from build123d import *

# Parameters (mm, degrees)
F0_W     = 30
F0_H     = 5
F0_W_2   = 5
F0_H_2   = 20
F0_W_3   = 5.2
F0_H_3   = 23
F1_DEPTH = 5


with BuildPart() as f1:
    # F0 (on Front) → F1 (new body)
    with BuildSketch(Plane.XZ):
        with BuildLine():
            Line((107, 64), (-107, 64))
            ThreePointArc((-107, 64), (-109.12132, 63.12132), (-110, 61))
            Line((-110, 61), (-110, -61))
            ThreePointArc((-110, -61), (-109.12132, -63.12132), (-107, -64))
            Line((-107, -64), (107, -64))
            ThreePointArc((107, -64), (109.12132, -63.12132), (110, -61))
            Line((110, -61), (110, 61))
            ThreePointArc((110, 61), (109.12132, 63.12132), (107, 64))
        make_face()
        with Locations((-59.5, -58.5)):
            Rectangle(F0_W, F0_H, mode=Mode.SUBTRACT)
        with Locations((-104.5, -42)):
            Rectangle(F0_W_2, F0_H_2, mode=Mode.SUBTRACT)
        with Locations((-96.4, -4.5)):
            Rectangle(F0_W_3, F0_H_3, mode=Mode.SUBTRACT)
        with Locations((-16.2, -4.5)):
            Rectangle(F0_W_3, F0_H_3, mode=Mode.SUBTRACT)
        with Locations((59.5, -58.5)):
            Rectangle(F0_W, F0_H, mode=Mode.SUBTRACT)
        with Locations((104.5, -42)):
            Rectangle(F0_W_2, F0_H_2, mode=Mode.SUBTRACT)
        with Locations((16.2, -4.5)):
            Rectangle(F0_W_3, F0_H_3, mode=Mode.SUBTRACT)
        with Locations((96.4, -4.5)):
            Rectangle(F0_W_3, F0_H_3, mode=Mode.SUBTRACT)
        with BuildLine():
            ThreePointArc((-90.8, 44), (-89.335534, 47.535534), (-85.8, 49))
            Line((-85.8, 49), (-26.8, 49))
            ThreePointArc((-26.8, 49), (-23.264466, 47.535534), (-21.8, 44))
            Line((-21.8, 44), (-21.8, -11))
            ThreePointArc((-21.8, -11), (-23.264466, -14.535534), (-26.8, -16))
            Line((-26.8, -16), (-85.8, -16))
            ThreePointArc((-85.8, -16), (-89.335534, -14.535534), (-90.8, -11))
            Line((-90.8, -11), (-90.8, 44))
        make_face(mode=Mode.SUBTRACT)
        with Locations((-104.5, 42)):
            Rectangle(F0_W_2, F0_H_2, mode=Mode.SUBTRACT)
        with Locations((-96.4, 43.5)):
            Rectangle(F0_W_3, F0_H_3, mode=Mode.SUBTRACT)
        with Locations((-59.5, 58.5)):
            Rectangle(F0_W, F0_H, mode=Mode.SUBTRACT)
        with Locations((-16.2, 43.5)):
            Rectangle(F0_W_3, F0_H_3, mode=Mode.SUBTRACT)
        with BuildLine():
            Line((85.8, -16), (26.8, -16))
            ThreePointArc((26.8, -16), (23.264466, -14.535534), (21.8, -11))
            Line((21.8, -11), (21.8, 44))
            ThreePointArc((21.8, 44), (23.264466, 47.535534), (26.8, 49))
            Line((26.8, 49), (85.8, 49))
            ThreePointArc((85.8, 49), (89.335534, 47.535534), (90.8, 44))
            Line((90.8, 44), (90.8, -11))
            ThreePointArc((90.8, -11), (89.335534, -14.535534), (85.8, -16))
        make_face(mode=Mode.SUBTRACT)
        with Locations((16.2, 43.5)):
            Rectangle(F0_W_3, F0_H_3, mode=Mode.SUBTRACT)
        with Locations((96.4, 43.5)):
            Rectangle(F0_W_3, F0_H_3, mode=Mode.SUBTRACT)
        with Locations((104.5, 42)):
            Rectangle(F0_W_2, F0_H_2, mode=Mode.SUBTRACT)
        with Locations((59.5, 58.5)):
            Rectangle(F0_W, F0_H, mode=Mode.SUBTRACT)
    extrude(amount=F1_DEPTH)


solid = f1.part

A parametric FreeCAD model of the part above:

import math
import FreeCAD as App
import Part
import Sketcher


def add_polygon(sketch, points):
    """Adds a closed chain of lines whose ends are joined by coincident constraints."""
    first, n = sketch.GeometryCount, len(points)
    for a, b in zip(points, points[1:] + points[:1]):
        sketch.addGeometry(Part.LineSegment(App.Vector(*a, 0), App.Vector(*b, 0)), False)
    for i in range(n):
        sketch.addConstraint(Sketcher.Constraint("Coincident", first + i, 2, first + (i + 1) % n, 1))

doc = App.newDocument("Part")
params = doc.addObject("Spreadsheet::Sheet", "Params")
for row, (alias, value) in enumerate([
    ("sketch1_radius", "3.000001 mm"),
    ("sketch1_radius2", "5 mm"),
    ("sketch1_width", "214 mm"),
    ("sketch1_width2", "30 mm"),
    ("sketch1_width3", "5 mm"),
    ("pad1_length", "5 mm"),
], start=1):
    params.set(f"A{row}", alias)
    params.set(f"B{row}", "=" + value)
    params.setAlias(f"B{row}", alias)

body = doc.addObject("PartDesign::Body", "Body")

sketch1 = body.newObject("Sketcher::SketchObject", "Sketch")
sketch1.AttachmentSupport = (doc.getObject("XZ_Plane"), [""])
sketch1.MapMode = "FlatFace"
sketch1.addGeometry(Part.LineSegment(App.Vector(107, 64, 0), App.Vector(-107, 64, 0)), False)
sketch1.addGeometry(Part.ArcOfCircle(Part.Circle(App.Vector(-106.999999, 60.999999, 0), App.Vector(0, 0, 1), 3.000001), math.radians(90.000022), math.radians(179.999978)), False)
sketch1.addGeometry(Part.LineSegment(App.Vector(-110, 61, 0), App.Vector(-110, -61, 0)), False)
sketch1.addGeometry(Part.ArcOfCircle(Part.Circle(App.Vector(-106.999999, -60.999999, 0), App.Vector(0, 0, 1), 3.000001), math.radians(-179.999978), math.radians(-90.000022)), False)
sketch1.addGeometry(Part.LineSegment(App.Vector(-107, -64, 0), App.Vector(107, -64, 0)), False)
sketch1.addGeometry(Part.ArcOfCircle(Part.Circle(App.Vector(106.999999, -60.999999, 0), App.Vector(0, 0, 1), 3.000001), math.radians(-89.999978), math.radians(-0.000022)), False)
sketch1.addGeometry(Part.LineSegment(App.Vector(110, -61, 0), App.Vector(110, 61, 0)), False)
sketch1.addGeometry(Part.ArcOfCircle(Part.Circle(App.Vector(106.999999, 60.999999, 0), App.Vector(0, 0, 1), 3.000001), math.radians(0.000022), math.radians(89.999978)), False)
add_polygon(sketch1, [(-44.5, -61), (-74.5, -61), (-74.5, -56), (-44.5, -56)])
add_polygon(sketch1, [(-102, -52), (-107, -52), (-107, -32), (-102, -32)])
add_polygon(sketch1, [(-93.8, -16), (-99, -16), (-99, 7), (-93.8, 7)])
add_polygon(sketch1, [(-13.6, -16), (-18.8, -16), (-18.8, 7), (-13.6, 7)])
add_polygon(sketch1, [(74.5, -61), (44.5, -61), (44.5, -56), (74.5, -56)])
add_polygon(sketch1, [(107, -52), (102, -52), (102, -32), (107, -32)])
add_polygon(sketch1, [(18.8, -16), (13.6, -16), (13.6, 7), (18.8, 7)])
add_polygon(sketch1, [(99, -16), (93.8, -16), (93.8, 7), (99, 7)])
sketch1.addGeometry(Part.LineSegment(App.Vector(-90.8, -11, 0), App.Vector(-90.8, 44, 0)), False)
sketch1.addGeometry(Part.ArcOfCircle(Part.Circle(App.Vector(-85.8, 44, 0), App.Vector(0, 0, 1), 5), math.radians(89.999996), math.radians(180.000004)), False)
sketch1.addGeometry(Part.LineSegment(App.Vector(-85.8, 49, 0), App.Vector(-26.8, 49, 0)), False)
sketch1.addGeometry(Part.ArcOfCircle(Part.Circle(App.Vector(-26.8, 44, 0), App.Vector(0, 0, 1), 5), math.radians(-0.000004), math.radians(90.000004)), False)
sketch1.addGeometry(Part.LineSegment(App.Vector(-21.8, 44, 0), App.Vector(-21.8, -11, 0)), False)
sketch1.addGeometry(Part.ArcOfCircle(Part.Circle(App.Vector(-26.8, -11, 0), App.Vector(0, 0, 1), 5), math.radians(-90.000004), math.radians(0.000004)), False)
sketch1.addGeometry(Part.LineSegment(App.Vector(-26.8, -16, 0), App.Vector(-85.8, -16, 0)), False)
sketch1.addGeometry(Part.ArcOfCircle(Part.Circle(App.Vector(-85.8, -11, 0), App.Vector(0, 0, 1), 5), math.radians(179.999996), math.radians(270.000004)), False)
add_polygon(sketch1, [(-102, 32), (-107, 32), (-107, 52), (-102, 52)])
add_polygon(sketch1, [(-93.8, 32), (-99, 32), (-99, 55), (-93.8, 55)])
add_polygon(sketch1, [(-44.5, 56), (-74.5, 56), (-74.5, 61), (-44.5, 61)])
add_polygon(sketch1, [(-13.6, 32), (-18.8, 32), (-18.8, 55), (-13.6, 55)])
sketch1.addGeometry(Part.ArcOfCircle(Part.Circle(App.Vector(85.8, -11, 0), App.Vector(0, 0, 1), 5), math.radians(-90.000004), math.radians(0.000004)), False)
sketch1.addGeometry(Part.LineSegment(App.Vector(85.8, -16, 0), App.Vector(26.8, -16, 0)), False)
sketch1.addGeometry(Part.ArcOfCircle(Part.Circle(App.Vector(26.8, -11, 0), App.Vector(0, 0, 1), 5), math.radians(179.999996), math.radians(270.000004)), False)
sketch1.addGeometry(Part.LineSegment(App.Vector(21.8, -11, 0), App.Vector(21.8, 44, 0)), False)
sketch1.addGeometry(Part.ArcOfCircle(Part.Circle(App.Vector(26.8, 44, 0), App.Vector(0, 0, 1), 5), math.radians(89.999996), math.radians(180.000004)), False)
sketch1.addGeometry(Part.LineSegment(App.Vector(26.8, 49, 0), App.Vector(85.8, 49, 0)), False)
sketch1.addGeometry(Part.ArcOfCircle(Part.Circle(App.Vector(85.8, 44, 0), App.Vector(0, 0, 1), 5), math.radians(-0.000004), math.radians(90.000004)), False)
sketch1.addGeometry(Part.LineSegment(App.Vector(90.8, 44, 0), App.Vector(90.8, -11, 0)), False)
add_polygon(sketch1, [(18.8, 32), (13.6, 32), (13.6, 55), (18.8, 55)])
add_polygon(sketch1, [(99, 32), (93.8, 32), (93.8, 55), (99, 55)])
add_polygon(sketch1, [(107, 32), (102, 32), (102, 52), (107, 52)])
add_polygon(sketch1, [(74.5, 56), (44.5, 56), (44.5, 61), (74.5, 61)])
sketch1.addConstraint([
    Sketcher.Constraint("Tangent", 0, 2, 1, 1),
    Sketcher.Constraint("Tangent", 1, 2, 2, 1),
    Sketcher.Constraint("Tangent", 2, 2, 3, 1),
    Sketcher.Constraint("Tangent", 3, 2, 4, 1),
    Sketcher.Constraint("Tangent", 4, 2, 5, 1),
    Sketcher.Constraint("Tangent", 5, 2, 6, 1),
    Sketcher.Constraint("Tangent", 6, 2, 7, 1),
    Sketcher.Constraint("Tangent", 7, 2, 0, 1),
    Sketcher.Constraint("Tangent", 40, 2, 41, 2),
    Sketcher.Constraint("Tangent", 41, 1, 42, 1),
    Sketcher.Constraint("Tangent", 42, 2, 43, 2),
    Sketcher.Constraint("Tangent", 43, 1, 44, 1),
    Sketcher.Constraint("Tangent", 44, 2, 45, 2),
    Sketcher.Constraint("Tangent", 45, 1, 46, 1),
    Sketcher.Constraint("Tangent", 46, 2, 47, 2),
    Sketcher.Constraint("Tangent", 47, 1, 40, 1),
    Sketcher.Constraint("Tangent", 64, 1, 65, 1),
    Sketcher.Constraint("Tangent", 65, 2, 66, 2),
    Sketcher.Constraint("Tangent", 66, 1, 67, 1),
    Sketcher.Constraint("Tangent", 67, 2, 68, 2),
    Sketcher.Constraint("Tangent", 68, 1, 69, 1),
    Sketcher.Constraint("Tangent", 69, 2, 70, 2),
    Sketcher.Constraint("Tangent", 70, 1, 71, 1),
    Sketcher.Constraint("Tangent", 71, 2, 64, 2),
    Sketcher.Constraint("Horizontal", 0),
    Sketcher.Constraint("Vertical", 2),
    Sketcher.Constraint("Horizontal", 4),
    Sketcher.Constraint("Vertical", 6),
    Sketcher.Constraint("Horizontal", 8),
    Sketcher.Constraint("Vertical", 9),
    Sketcher.Constraint("Horizontal", 10),
    Sketcher.Constraint("Vertical", 11),
    Sketcher.Constraint("Horizontal", 12),
    Sketcher.Constraint("Vertical", 13),
    Sketcher.Constraint("Horizontal", 14),
    Sketcher.Constraint("Vertical", 15),
    Sketcher.Constraint("Horizontal", 16),
    Sketcher.Constraint("Vertical", 17),
    Sketcher.Constraint("Horizontal", 18),
    Sketcher.Constraint("Vertical", 19),
    Sketcher.Constraint("Horizontal", 20),
    Sketcher.Constraint("Vertical", 21),
    Sketcher.Constraint("Horizontal", 22),
    Sketcher.Constraint("Vertical", 23),
    Sketcher.Constraint("Horizontal", 24),
    Sketcher.Constraint("Vertical", 25),
    Sketcher.Constraint("Horizontal", 26),
    Sketcher.Constraint("Vertical", 27),
    Sketcher.Constraint("Horizontal", 28),
    Sketcher.Constraint("Vertical", 29),
    Sketcher.Constraint("Horizontal", 30),
    Sketcher.Constraint("Vertical", 31),
    Sketcher.Constraint("Horizontal", 32),
    Sketcher.Constraint("Vertical", 33),
    Sketcher.Constraint("Horizontal", 34),
    Sketcher.Constraint("Vertical", 35),
    Sketcher.Constraint("Horizontal", 36),
    Sketcher.Constraint("Vertical", 37),
    Sketcher.Constraint("Horizontal", 38),
    Sketcher.Constraint("Vertical", 39),
    Sketcher.Constraint("Vertical", 40),
    Sketcher.Constraint("Horizontal", 42),
    Sketcher.Constraint("Vertical", 44),
    Sketcher.Constraint("Horizontal", 46),
    Sketcher.Constraint("Horizontal", 48),
    Sketcher.Constraint("Vertical", 49),
    Sketcher.Constraint("Horizontal", 50),
    Sketcher.Constraint("Vertical", 51),
    Sketcher.Constraint("Horizontal", 52),
    Sketcher.Constraint("Vertical", 53),
    Sketcher.Constraint("Horizontal", 54),
    Sketcher.Constraint("Vertical", 55),
    Sketcher.Constraint("Horizontal", 56),
    Sketcher.Constraint("Vertical", 57),
    Sketcher.Constraint("Horizontal", 58),
    Sketcher.Constraint("Vertical", 59),
    Sketcher.Constraint("Horizontal", 60),
    Sketcher.Constraint("Vertical", 61),
    Sketcher.Constraint("Horizontal", 62),
    Sketcher.Constraint("Vertical", 63),
    Sketcher.Constraint("Horizontal", 65),
    Sketcher.Constraint("Vertical", 67),
    Sketcher.Constraint("Horizontal", 69),
    Sketcher.Constraint("Vertical", 71),
    Sketcher.Constraint("Horizontal", 72),
    Sketcher.Constraint("Vertical", 73),
    Sketcher.Constraint("Horizontal", 74),
    Sketcher.Constraint("Vertical", 75),
    Sketcher.Constraint("Horizontal", 76),
    Sketcher.Constraint("Vertical", 77),
    Sketcher.Constraint("Horizontal", 78),
    Sketcher.Constraint("Vertical", 79),
    Sketcher.Constraint("Horizontal", 80),
    Sketcher.Constraint("Vertical", 81),
    Sketcher.Constraint("Horizontal", 82),
    Sketcher.Constraint("Vertical", 83),
    Sketcher.Constraint("Horizontal", 84),
    Sketcher.Constraint("Vertical", 85),
    Sketcher.Constraint("Horizontal", 86),
    Sketcher.Constraint("Vertical", 87),
    Sketcher.Constraint("Equal", 1, 3),
    Sketcher.Constraint("Equal", 3, 5),
    Sketcher.Constraint("Equal", 5, 7),
    Sketcher.Constraint("Equal", 41, 43),
    Sketcher.Constraint("Equal", 43, 45),
    Sketcher.Constraint("Equal", 45, 47),
    Sketcher.Constraint("Equal", 47, 64),
    Sketcher.Constraint("Equal", 64, 66),
    Sketcher.Constraint("Equal", 66, 68),
    Sketcher.Constraint("Equal", 68, 70),
    Sketcher.Constraint("Symmetric", 1, 3, 5, 3, -1, 1),
    Sketcher.Constraint("Symmetric", 30, 2, 48, 2, -1, 1),
    Sketcher.Constraint("Symmetric", 28, 2, 50, 2, -1, 1),
    Sketcher.Constraint("Symmetric", 26, 2, 56, 2, -1, 1),
    Sketcher.Constraint("Symmetric", 24, 2, 58, 2, -1, 1),
    Sketcher.Constraint("Symmetric", 14, 2, 80, 2, -1, 1),
    Sketcher.Constraint("Symmetric", 12, 2, 82, 2, -1, 1),
    Sketcher.Constraint("Symmetric", 10, 2, 84, 2, -1, 1),
    Sketcher.Constraint("Symmetric", 8, 2, 86, 2, -1, 1),
    Sketcher.Constraint("Symmetric", 47, 3, 64, 3, -2),
    Sketcher.Constraint("Symmetric", 43, 3, 68, 3, -2),
    Sketcher.Constraint("Symmetric", 11, 2, 24, 2, -2),
    Sketcher.Constraint("Symmetric", 9, 2, 26, 2, -2),
    Sketcher.Constraint("Symmetric", 15, 2, 28, 2, -2),
    Sketcher.Constraint("Symmetric", 13, 2, 30, 2, -2),
    Sketcher.Constraint("Symmetric", 23, 2, 32, 2, -2),
    Sketcher.Constraint("Symmetric", 21, 2, 34, 2, -2),
    Sketcher.Constraint("Symmetric", 19, 2, 36, 2, -2),
    Sketcher.Constraint("Symmetric", 17, 2, 38, 2, -2),
    Sketcher.Constraint("Symmetric", 63, 2, 72, 2, -2),
    Sketcher.Constraint("Symmetric", 61, 2, 74, 2, -2),
    Sketcher.Constraint("Symmetric", 55, 2, 76, 2, -2),
    Sketcher.Constraint("Symmetric", 53, 2, 78, 2, -2),
    Sketcher.Constraint("Horizontal", 5, 2, 8, 2),
    Sketcher.Constraint("Horizontal", 19, 2, 20, 2),
    Sketcher.Constraint("Horizontal", 18, 2, 21, 2),
    Sketcher.Constraint("Horizontal", 39, 2, 45, 1),
    Sketcher.Constraint("Horizontal", 51, 2, 52, 2),
    Sketcher.Constraint("Horizontal", 55, 2, 60, 2),
    Sketcher.Constraint("Horizontal", 54, 2, 61, 2),
    Sketcher.Constraint("Vertical", 3, 2, 12, 2),
    Sketcher.Constraint("Vertical", 17, 2, 52, 2),
    Sketcher.Constraint("Vertical", 19, 2, 54, 2),
    Sketcher.Constraint("Vertical", 21, 2, 60, 2),
    Sketcher.Constraint("Vertical", 23, 2, 62, 2),
    Sketcher.Constraint("Equal", 18, 20),
    Sketcher.Constraint("Equal", 82, 9),
    Sketcher.Constraint("Equal", 39, 53),
    Sketcher.Constraint("Radius", 1, 3.000001),
    Sketcher.Constraint("Radius", 41, 5.0),
    Sketcher.Constraint("DistanceX", 0, 2, 0, 1, 214.0),
    Sketcher.Constraint("DistanceX", 8, 2, 8, 1, 30.0),
    Sketcher.Constraint("DistanceX", 12, 2, 12, 1, 5.0),
    Sketcher.Constraint("DistanceX", 42, 1, 42, 2, 59.0),
    Sketcher.Constraint("DistanceY", 2, 2, 2, 1, 122.0),
    Sketcher.Constraint("DistanceY", 13, 1, 13, 2, 20.0),
    Sketcher.Constraint("DistanceY", 17, 1, 17, 2, 23.0),
    Sketcher.Constraint("DistanceY", 40, 1, 40, 2, 55.0),
    Sketcher.Constraint("DistanceX", 16, 2, 16, 1, 5.2),
    Sketcher.Constraint("DistanceY", -1, 1, 41, 3, 44.0),
    Sketcher.Constraint("DistanceY", 12, 2, -1, 1, 52.0),
    Sketcher.Constraint("DistanceX", 16, 2, -1, 1, 99.0),
    Sketcher.Constraint("DistanceX", 41, 3, -1, 1, 85.8),
    Sketcher.Constraint("DistanceX", 8, 2, -1, 1, 74.5),
    Sketcher.Constraint("DistanceX", 20, 2, -1, 1, 18.8),
])
sketch1.setExpression("Constraints[212]", "Params.sketch1_radius")
sketch1.setExpression("Constraints[213]", "Params.sketch1_radius2")
sketch1.setExpression("Constraints[214]", "Params.sketch1_width")
sketch1.setExpression("Constraints[215]", "Params.sketch1_width2")
sketch1.setExpression("Constraints[216]", "Params.sketch1_width3")
pad1 = body.newObject("PartDesign::Pad", "Pad")
pad1.Profile = sketch1
pad1.setExpression("Length", "Params.pad1_length")

doc.recompute()
